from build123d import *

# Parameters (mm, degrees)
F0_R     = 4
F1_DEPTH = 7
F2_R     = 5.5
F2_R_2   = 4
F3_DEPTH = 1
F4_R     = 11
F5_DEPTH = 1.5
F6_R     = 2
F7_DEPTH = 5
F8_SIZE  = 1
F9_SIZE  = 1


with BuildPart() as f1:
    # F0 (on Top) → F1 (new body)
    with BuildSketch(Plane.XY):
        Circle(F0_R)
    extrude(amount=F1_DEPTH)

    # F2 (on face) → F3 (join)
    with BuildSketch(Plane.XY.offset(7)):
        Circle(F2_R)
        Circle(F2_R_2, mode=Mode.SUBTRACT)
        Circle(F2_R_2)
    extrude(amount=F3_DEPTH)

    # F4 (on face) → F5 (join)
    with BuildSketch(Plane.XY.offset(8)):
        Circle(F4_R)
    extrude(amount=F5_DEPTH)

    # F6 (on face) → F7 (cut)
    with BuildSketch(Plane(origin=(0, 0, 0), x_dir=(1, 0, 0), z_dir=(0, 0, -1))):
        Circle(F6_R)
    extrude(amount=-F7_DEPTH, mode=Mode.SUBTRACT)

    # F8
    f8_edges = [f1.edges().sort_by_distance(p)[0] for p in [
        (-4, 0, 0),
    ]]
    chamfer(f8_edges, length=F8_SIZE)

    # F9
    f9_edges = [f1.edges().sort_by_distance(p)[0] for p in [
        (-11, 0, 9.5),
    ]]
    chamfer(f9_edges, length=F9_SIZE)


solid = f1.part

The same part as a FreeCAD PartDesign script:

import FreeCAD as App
import Part
import Sketcher

V = App.Vector
Q = App.Units.Quantity


def edges_at(feature, points):
    """Names of the edges that pass closest to the given points."""
    edges = feature.Shape.Edges
    near = lambda p: min(range(len(edges)), key=lambda i: edges[i].distToShape(Part.Vertex(*p))[0])
    return sorted({f"Edge{near(p) + 1}" for p in points})

doc = App.newDocument("Part")
body = doc.addObject("PartDesign::Body", "Body")

sketch1 = body.newObject("Sketcher::SketchObject", "Sketch")
sketch1.AttachmentSupport = (doc.getObject("XY_Plane"), [""])
sketch1.MapMode = "FlatFace"
sketch1.addGeometry(Part.Circle(V(0, 0, 0), V(0, 0, 1), 4), False)
sketch1.addConstraint(Sketcher.Constraint("Coincident", 0, 3, -1, 1))
sketch1.addConstraint(Sketcher.Constraint("Diameter", 0, Q("8 mm")))
pad1 = body.newObject("PartDesign::Pad", "Pad")
pad1.Profile = sketch1
pad1.Length = 7

sketch2 = body.newObject("Sketcher::SketchObject", "Sketch001")
sketch2.AttachmentSupport = (doc.getObject("XY_Plane"), [""])
sketch2.MapMode = "FlatFace"
sketch2.AttachmentOffset = App.Placement(V(0, 0, 7), App.Rotation())
sketch2.addGeometry(Part.Circle(V(0, 0, 0), V(0, 0, 1), 6), False)
sketch2.addConstraint(Sketcher.Constraint("Coincident", 0, 3, -1, 1))
sketch2.addConstraint(Sketcher.Constraint("Diameter", 0, Q("11 mm")))
pad2 = body.newObject("PartDesign::Pad", "Pad001")
pad2.Profile = sketch2
pad2.Length = 1

sketch3 = body.newObject("Sketcher::SketchObject", "Sketch002")
sketch3.AttachmentSupport = (doc.getObject("XY_Plane"), [""])
sketch3.MapMode = "FlatFace"
sketch3.AttachmentOffset = App.Placement(V(0, 0, 8), App.Rotation())
sketch3.addGeometry(Part.Circle(V(0, 0, 0), V(0, 0, 1), 11), False)
sketch3.addConstraint(Sketcher.Constraint("Coincident", 0, 3, -1, 1))
sketch3.addConstraint(Sketcher.Constraint("Diameter", 0, Q("22 mm")))
pad3 = body.newObject("PartDesign::Pad", "Pad002")
pad3.Profile = sketch3
pad3.Length = 1.5

sketch4 = body.newObject("Sketcher::SketchObject", "Sketch003")
sketch4.AttachmentSupport = (doc.getObject("XY_Plane"), [""])
sketch4.MapMode = "FlatFace"
sketch4.addGeometry(Part.Circle(V(0, 0, 0), V(0, 0, 1), 2), False)
sketch4.addConstraint(Sketcher.Constraint("Coincident", 0, 3, -1, 1))
sketch4.addConstraint(Sketcher.Constraint("Diameter", 0, Q("4 mm")))
pocket1 = body.newObject("PartDesign::Pocket", "Pocket")
pocket1.Profile = sketch4
pocket1.Length = 5
pocket1.Reversed = True
doc.recompute()

chamfer = body.newObject("PartDesign::Chamfer", "Chamfer")
chamfer.Base = (pocket1, edges_at(pocket1, [(-4, 0, 0)]))
chamfer.Size = 1
doc.recompute()

chamfer2 = body.newObject("PartDesign::Chamfer", "Chamfer001")
chamfer2.Base = (chamfer, edges_at(chamfer, [(-11, 0, 9.5)]))
chamfer2.Size = 1

doc.recompute()
